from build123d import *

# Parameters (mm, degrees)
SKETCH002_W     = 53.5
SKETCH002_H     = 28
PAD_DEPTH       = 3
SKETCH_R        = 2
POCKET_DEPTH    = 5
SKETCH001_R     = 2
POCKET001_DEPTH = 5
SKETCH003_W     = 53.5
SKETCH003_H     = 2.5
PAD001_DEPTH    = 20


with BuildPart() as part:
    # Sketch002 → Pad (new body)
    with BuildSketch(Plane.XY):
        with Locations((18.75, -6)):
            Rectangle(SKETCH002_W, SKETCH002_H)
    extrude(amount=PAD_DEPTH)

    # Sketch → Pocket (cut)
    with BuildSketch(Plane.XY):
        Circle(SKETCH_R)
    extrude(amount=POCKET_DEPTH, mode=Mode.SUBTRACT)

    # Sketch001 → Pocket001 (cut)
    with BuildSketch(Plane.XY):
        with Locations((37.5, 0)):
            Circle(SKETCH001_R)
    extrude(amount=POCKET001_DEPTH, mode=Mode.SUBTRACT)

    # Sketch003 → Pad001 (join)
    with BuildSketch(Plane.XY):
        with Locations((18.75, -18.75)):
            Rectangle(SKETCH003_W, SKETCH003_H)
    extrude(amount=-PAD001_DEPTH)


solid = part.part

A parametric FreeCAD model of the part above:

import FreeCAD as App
import Part
import Sketcher
from FreeCAD import Vector
Q = App.Units.Quantity

doc = App.newDocument("Part")
body = doc.addObject("PartDesign::Body", "Body")

sketch1 = body.newObject("Sketcher::SketchObject", "Sketch")
sketch1.AttachmentSupport = (doc.getObject("XY_Plane"), [""])
sketch1.MapMode = "FlatFace"
sketch1.addGeometry(Part.LineSegment(Vector(-8, 8, 0), Vector(-8, -20, 0)), False)
sketch1.addGeometry(Part.LineSegment(Vector(-8, -20, 0), Vector(46, -20, 0)), False)
sketch1.addGeometry(Part.LineSegment(Vector(46, -20, 0), Vector(46, 8, 0)), False)
sketch1.addGeometry(Part.LineSegment(Vector(46, 8, 0), Vector(-8, 8, 0)), False)
sketch1.addConstraint(Sketcher.Constraint("Coincident", 0, 2, 1, 1))
sketch1.addConstraint(Sketcher.Constraint("Coincident", 1, 2, 2, 1))
sketch1.addConstraint(Sketcher.Constraint("Coincident", 2, 2, 3, 1))
sketch1.addConstraint(Sketcher.Constraint("Coincident", 3, 2, 0, 1))
sketch1.addConstraint(Sketcher.Constraint("Vertical", 0))
sketch1.addConstraint(Sketcher.Constraint("Horizontal", 1))
sketch1.addConstraint(Sketcher.Constraint("Vertical", 2))
sketch1.addConstraint(Sketcher.Constraint("Horizontal", 3))
sketch1.addConstraint(Sketcher.Constraint("DistanceY", 0, 2, 0, 1, Q("28 mm")))
sketch1.addConstraint(Sketcher.Constraint("DistanceX", 1, 1, 1, 2, Q("53.5 mm")))
sketch1.addConstraint(Sketcher.Constraint("DistanceX", 0, 2, -1, 1, Q("8 mm")))
sketch1.addConstraint(Sketcher.Constraint("DistanceY", 0, 2, -1, 1, Q("20 mm")))
pad1 = body.newObject("PartDesign::Pad", "Pad")
pad1.Profile = sketch1
pad1.Length = 3

sketch2 = body.newObject("Sketcher::SketchObject", "Sketch001")
sketch2.AttachmentSupport = (doc.getObject("XY_Plane"), [""])
sketch2.MapMode = "FlatFace"
sketch2.addGeometry(Part.Circle(Vector(0, 0, 0), Vector(0, 0, 1), 2), False)
sketch2.addConstraint(Sketcher.Constraint("Coincident", 0, 3, -1, 1))
sketch2.addConstraint(Sketcher.Constraint("Diameter", 0, Q("4 mm")))
pocket1 = body.newObject("PartDesign::Pocket", "Pocket")
pocket1.Profile = sketch2
pocket1.Length = 5
pocket1.Reversed = True

sketch3 = body.newObject("Sketcher::SketchObject", "Sketch002")
sketch3.AttachmentSupport = (doc.getObject("XY_Plane"), [""])
sketch3.MapMode = "FlatFace"
sketch3.addGeometry(Part.Circle(Vector(37.5, 0, 0), Vector(0, 0, 1), 2), False)
sketch3.addConstraint(Sketcher.Constraint("PointOnObject", 0, 3, -1))
sketch3.addConstraint(Sketcher.Constraint("Diameter", 0, Q("4 mm")))
sketch3.addConstraint(Sketcher.Constraint("DistanceX", -1, 1, 0, 3, Q("37.5 mm")))
pocket2 = body.newObject("PartDesign::Pocket", "Pocket001")
pocket2.Profile = sketch3
pocket2.Length = 5
pocket2.Reversed = True

sketch4 = body.newObject("Sketcher::SketchObject", "Sketch003")
sketch4.AttachmentSupport = (doc.getObject("XY_Plane"), [""])
sketch4.MapMode = "FlatFace"
sketch4.addGeometry(Part.LineSegment(Vector(-8, -17.5, 0), Vector(-8, -20, 0)), False)
sketch4.addGeometry(Part.LineSegment(Vector(-8, -20, 0), Vector(45.5, -20, 0)), False)
sketch4.addGeometry(Part.LineSegment(Vector(45.5, -20, 0), Vector(45.5, -17.5, 0)), False)
sketch4.addGeometry(Part.LineSegment(Vector(45.5, -17.5, 0), Vector(-8, -17.5, 0)), False)
sketch4.addConstraint(Sketcher.Constraint("Coincident", 0, 2, 1, 1))
sketch4.addConstraint(Sketcher.Constraint("Coincident", 1, 2, 2, 1))
sketch4.addConstraint(Sketcher.Constraint("Coincident", 2, 2, 3, 1))
sketch4.addConstraint(Sketcher.Constraint("Coincident", 3, 2, 0, 1))
sketch4.addConstraint(Sketcher.Constraint("Vertical", 0))
sketch4.addConstraint(Sketcher.Constraint("Horizontal", 1))
sketch4.addConstraint(Sketcher.Constraint("Vertical", 2))
sketch4.addConstraint(Sketcher.Constraint("Horizontal", 3))
sketch4.addConstraint(Sketcher.Constraint("DistanceX", 1, 1, 1, 2, Q("53.5 mm")))
sketch4.addConstraint(Sketcher.Constraint("DistanceY", 0, 2, 0, 1, Q("2.5 mm")))
sketch4.addConstraint(Sketcher.Constraint("DistanceX", 0, 2, -1, 1, Q("8 mm")))
sketch4.addConstraint(Sketcher.Constraint("DistanceY", 0, 2, -1, 1, Q("20 mm")))
pad2 = body.newObject("PartDesign::Pad", "Pad001")
pad2.Profile = sketch4
pad2.Length = 20
pad2.Reversed = True

doc.recompute()
